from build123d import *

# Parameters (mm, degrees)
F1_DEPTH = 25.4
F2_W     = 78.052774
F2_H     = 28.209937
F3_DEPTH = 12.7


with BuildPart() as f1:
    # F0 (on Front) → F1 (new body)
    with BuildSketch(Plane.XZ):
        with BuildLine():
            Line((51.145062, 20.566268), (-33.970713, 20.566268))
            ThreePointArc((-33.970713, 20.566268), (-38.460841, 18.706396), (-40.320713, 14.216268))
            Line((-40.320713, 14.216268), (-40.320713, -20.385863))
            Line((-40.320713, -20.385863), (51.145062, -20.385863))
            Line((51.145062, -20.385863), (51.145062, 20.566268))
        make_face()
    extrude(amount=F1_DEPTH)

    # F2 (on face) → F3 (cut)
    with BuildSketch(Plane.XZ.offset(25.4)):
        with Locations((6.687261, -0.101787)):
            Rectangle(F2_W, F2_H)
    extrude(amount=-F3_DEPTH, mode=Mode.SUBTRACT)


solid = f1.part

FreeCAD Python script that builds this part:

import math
import FreeCAD as App
import Part
import Sketcher
from FreeCAD import Vector
Q = App.Units.Quantity


def add_polygon(sketch, points):
    """Adds a closed chain of lines whose ends are joined by coincident constraints."""
    first, n = sketch.GeometryCount, len(points)
    for a, b in zip(points, points[1:] + points[:1]):
        sketch.addGeometry(Part.LineSegment(App.Vector(*a, 0), App.Vector(*b, 0)), False)
    for i in range(n):
        sketch.addConstraint(Sketcher.Constraint("Coincident", first + i, 2, first + (i + 1) % n, 1))

doc = App.newDocument("Part")
body = doc.addObject("PartDesign::Body", "Body")

sketch1 = body.newObject("Sketcher::SketchObject", "Sketch")
sketch1.AttachmentSupport = (doc.getObject("XZ_Plane"), [""])
sketch1.MapMode = "FlatFace"
sketch1.addGeometry(Part.LineSegment(Vector(51, 21, 0), Vector(-34, 21, 0)), False)
sketch1.addGeometry(Part.ArcOfCircle(Part.Circle(Vector(-34, 14, 0), Vector(0, 0, 1), 6), math.radians(90), math.radians(180)), False)
sketch1.addGeometry(Part.LineSegment(Vector(-40, 14, 0), Vector(-40, -20, 0)), False)
sketch1.addGeometry(Part.LineSegment(Vector(-40, -20, 0), Vector(51, -20, 0)), False)
sketch1.addGeometry(Part.LineSegment(Vector(51, -20, 0), Vector(51, 21, 0)), False)
sketch1.addConstraint(Sketcher.Constraint("Tangent", 0, 2, 1, 1))
sketch1.addConstraint(Sketcher.Constraint("Tangent", 1, 2, 2, 1))
sketch1.addConstraint(Sketcher.Constraint("Coincident", 2, 2, 3, 1))
sketch1.addConstraint(Sketcher.Constraint("Coincident", 3, 2, 4, 1))
sketch1.addConstraint(Sketcher.Constraint("Coincident", 4, 2, 0, 1))
sketch1.addConstraint(Sketcher.Constraint("Horizontal", 0))
sketch1.addConstraint(Sketcher.Constraint("Vertical", 2))
sketch1.addConstraint(Sketcher.Constraint("Horizontal", 3))
sketch1.addConstraint(Sketcher.Constraint("Vertical", 4))
sketch1.addConstraint(Sketcher.Constraint("Radius", 1, Q("0.25 in")))
sketch1.addConstraint(Sketcher.Constraint("DistanceY", 2, 2, 2, 1, 34.602131))
sketch1.addConstraint(Sketcher.Constraint("DistanceX", 0, 2, 0, 1, 85.115775))
sketch1.addConstraint(Sketcher.Constraint("DistanceY", -1, 1, 0, 2, 20.566268))
sketch1.addConstraint(Sketcher.Constraint("DistanceX", 1, 3, -1, 1, 33.970713))
pad1 = body.newObject("PartDesign::Pad", "Pad")
pad1.Profile = sketch1
pad1.Length = Q("1 in")

sketch2 = body.newObject("Sketcher::SketchObject", "Sketch001")
sketch2.AttachmentSupport = (doc.getObject("XZ_Plane"), [""])
sketch2.MapMode = "FlatFace"
sketch2.AttachmentOffset = App.Placement(Vector(0, 0, 1 * 25.4), App.Rotation())
add_polygon(sketch2, [(-32, 14), (-32, -14), (46, -14), (46, 14)])
sketch2.addConstraint(Sketcher.Constraint("Vertical", 0))
sketch2.addConstraint(Sketcher.Constraint("Horizontal", 1))
sketch2.addConstraint(Sketcher.Constraint("Vertical", 2))
sketch2.addConstraint(Sketcher.Constraint("Horizontal", 3))
sketch2.addConstraint(Sketcher.Constraint("DistanceX", 1, 1, 1, 2, 78.052774))
sketch2.addConstraint(Sketcher.Constraint("DistanceY", 0, 2, 0, 1, 28.209937))
sketch2.addConstraint(Sketcher.Constraint("DistanceY", -1, 1, 2, 2, 14.003182))
sketch2.addConstraint(Sketcher.Constraint("DistanceX", 0, 2, -1, 1, 32.339126))
pocket1 = body.newObject("PartDesign::Pocket", "Pocket")
pocket1.Profile = sketch2
pocket1.Length = Q("0.5 in")

doc.recompute()
